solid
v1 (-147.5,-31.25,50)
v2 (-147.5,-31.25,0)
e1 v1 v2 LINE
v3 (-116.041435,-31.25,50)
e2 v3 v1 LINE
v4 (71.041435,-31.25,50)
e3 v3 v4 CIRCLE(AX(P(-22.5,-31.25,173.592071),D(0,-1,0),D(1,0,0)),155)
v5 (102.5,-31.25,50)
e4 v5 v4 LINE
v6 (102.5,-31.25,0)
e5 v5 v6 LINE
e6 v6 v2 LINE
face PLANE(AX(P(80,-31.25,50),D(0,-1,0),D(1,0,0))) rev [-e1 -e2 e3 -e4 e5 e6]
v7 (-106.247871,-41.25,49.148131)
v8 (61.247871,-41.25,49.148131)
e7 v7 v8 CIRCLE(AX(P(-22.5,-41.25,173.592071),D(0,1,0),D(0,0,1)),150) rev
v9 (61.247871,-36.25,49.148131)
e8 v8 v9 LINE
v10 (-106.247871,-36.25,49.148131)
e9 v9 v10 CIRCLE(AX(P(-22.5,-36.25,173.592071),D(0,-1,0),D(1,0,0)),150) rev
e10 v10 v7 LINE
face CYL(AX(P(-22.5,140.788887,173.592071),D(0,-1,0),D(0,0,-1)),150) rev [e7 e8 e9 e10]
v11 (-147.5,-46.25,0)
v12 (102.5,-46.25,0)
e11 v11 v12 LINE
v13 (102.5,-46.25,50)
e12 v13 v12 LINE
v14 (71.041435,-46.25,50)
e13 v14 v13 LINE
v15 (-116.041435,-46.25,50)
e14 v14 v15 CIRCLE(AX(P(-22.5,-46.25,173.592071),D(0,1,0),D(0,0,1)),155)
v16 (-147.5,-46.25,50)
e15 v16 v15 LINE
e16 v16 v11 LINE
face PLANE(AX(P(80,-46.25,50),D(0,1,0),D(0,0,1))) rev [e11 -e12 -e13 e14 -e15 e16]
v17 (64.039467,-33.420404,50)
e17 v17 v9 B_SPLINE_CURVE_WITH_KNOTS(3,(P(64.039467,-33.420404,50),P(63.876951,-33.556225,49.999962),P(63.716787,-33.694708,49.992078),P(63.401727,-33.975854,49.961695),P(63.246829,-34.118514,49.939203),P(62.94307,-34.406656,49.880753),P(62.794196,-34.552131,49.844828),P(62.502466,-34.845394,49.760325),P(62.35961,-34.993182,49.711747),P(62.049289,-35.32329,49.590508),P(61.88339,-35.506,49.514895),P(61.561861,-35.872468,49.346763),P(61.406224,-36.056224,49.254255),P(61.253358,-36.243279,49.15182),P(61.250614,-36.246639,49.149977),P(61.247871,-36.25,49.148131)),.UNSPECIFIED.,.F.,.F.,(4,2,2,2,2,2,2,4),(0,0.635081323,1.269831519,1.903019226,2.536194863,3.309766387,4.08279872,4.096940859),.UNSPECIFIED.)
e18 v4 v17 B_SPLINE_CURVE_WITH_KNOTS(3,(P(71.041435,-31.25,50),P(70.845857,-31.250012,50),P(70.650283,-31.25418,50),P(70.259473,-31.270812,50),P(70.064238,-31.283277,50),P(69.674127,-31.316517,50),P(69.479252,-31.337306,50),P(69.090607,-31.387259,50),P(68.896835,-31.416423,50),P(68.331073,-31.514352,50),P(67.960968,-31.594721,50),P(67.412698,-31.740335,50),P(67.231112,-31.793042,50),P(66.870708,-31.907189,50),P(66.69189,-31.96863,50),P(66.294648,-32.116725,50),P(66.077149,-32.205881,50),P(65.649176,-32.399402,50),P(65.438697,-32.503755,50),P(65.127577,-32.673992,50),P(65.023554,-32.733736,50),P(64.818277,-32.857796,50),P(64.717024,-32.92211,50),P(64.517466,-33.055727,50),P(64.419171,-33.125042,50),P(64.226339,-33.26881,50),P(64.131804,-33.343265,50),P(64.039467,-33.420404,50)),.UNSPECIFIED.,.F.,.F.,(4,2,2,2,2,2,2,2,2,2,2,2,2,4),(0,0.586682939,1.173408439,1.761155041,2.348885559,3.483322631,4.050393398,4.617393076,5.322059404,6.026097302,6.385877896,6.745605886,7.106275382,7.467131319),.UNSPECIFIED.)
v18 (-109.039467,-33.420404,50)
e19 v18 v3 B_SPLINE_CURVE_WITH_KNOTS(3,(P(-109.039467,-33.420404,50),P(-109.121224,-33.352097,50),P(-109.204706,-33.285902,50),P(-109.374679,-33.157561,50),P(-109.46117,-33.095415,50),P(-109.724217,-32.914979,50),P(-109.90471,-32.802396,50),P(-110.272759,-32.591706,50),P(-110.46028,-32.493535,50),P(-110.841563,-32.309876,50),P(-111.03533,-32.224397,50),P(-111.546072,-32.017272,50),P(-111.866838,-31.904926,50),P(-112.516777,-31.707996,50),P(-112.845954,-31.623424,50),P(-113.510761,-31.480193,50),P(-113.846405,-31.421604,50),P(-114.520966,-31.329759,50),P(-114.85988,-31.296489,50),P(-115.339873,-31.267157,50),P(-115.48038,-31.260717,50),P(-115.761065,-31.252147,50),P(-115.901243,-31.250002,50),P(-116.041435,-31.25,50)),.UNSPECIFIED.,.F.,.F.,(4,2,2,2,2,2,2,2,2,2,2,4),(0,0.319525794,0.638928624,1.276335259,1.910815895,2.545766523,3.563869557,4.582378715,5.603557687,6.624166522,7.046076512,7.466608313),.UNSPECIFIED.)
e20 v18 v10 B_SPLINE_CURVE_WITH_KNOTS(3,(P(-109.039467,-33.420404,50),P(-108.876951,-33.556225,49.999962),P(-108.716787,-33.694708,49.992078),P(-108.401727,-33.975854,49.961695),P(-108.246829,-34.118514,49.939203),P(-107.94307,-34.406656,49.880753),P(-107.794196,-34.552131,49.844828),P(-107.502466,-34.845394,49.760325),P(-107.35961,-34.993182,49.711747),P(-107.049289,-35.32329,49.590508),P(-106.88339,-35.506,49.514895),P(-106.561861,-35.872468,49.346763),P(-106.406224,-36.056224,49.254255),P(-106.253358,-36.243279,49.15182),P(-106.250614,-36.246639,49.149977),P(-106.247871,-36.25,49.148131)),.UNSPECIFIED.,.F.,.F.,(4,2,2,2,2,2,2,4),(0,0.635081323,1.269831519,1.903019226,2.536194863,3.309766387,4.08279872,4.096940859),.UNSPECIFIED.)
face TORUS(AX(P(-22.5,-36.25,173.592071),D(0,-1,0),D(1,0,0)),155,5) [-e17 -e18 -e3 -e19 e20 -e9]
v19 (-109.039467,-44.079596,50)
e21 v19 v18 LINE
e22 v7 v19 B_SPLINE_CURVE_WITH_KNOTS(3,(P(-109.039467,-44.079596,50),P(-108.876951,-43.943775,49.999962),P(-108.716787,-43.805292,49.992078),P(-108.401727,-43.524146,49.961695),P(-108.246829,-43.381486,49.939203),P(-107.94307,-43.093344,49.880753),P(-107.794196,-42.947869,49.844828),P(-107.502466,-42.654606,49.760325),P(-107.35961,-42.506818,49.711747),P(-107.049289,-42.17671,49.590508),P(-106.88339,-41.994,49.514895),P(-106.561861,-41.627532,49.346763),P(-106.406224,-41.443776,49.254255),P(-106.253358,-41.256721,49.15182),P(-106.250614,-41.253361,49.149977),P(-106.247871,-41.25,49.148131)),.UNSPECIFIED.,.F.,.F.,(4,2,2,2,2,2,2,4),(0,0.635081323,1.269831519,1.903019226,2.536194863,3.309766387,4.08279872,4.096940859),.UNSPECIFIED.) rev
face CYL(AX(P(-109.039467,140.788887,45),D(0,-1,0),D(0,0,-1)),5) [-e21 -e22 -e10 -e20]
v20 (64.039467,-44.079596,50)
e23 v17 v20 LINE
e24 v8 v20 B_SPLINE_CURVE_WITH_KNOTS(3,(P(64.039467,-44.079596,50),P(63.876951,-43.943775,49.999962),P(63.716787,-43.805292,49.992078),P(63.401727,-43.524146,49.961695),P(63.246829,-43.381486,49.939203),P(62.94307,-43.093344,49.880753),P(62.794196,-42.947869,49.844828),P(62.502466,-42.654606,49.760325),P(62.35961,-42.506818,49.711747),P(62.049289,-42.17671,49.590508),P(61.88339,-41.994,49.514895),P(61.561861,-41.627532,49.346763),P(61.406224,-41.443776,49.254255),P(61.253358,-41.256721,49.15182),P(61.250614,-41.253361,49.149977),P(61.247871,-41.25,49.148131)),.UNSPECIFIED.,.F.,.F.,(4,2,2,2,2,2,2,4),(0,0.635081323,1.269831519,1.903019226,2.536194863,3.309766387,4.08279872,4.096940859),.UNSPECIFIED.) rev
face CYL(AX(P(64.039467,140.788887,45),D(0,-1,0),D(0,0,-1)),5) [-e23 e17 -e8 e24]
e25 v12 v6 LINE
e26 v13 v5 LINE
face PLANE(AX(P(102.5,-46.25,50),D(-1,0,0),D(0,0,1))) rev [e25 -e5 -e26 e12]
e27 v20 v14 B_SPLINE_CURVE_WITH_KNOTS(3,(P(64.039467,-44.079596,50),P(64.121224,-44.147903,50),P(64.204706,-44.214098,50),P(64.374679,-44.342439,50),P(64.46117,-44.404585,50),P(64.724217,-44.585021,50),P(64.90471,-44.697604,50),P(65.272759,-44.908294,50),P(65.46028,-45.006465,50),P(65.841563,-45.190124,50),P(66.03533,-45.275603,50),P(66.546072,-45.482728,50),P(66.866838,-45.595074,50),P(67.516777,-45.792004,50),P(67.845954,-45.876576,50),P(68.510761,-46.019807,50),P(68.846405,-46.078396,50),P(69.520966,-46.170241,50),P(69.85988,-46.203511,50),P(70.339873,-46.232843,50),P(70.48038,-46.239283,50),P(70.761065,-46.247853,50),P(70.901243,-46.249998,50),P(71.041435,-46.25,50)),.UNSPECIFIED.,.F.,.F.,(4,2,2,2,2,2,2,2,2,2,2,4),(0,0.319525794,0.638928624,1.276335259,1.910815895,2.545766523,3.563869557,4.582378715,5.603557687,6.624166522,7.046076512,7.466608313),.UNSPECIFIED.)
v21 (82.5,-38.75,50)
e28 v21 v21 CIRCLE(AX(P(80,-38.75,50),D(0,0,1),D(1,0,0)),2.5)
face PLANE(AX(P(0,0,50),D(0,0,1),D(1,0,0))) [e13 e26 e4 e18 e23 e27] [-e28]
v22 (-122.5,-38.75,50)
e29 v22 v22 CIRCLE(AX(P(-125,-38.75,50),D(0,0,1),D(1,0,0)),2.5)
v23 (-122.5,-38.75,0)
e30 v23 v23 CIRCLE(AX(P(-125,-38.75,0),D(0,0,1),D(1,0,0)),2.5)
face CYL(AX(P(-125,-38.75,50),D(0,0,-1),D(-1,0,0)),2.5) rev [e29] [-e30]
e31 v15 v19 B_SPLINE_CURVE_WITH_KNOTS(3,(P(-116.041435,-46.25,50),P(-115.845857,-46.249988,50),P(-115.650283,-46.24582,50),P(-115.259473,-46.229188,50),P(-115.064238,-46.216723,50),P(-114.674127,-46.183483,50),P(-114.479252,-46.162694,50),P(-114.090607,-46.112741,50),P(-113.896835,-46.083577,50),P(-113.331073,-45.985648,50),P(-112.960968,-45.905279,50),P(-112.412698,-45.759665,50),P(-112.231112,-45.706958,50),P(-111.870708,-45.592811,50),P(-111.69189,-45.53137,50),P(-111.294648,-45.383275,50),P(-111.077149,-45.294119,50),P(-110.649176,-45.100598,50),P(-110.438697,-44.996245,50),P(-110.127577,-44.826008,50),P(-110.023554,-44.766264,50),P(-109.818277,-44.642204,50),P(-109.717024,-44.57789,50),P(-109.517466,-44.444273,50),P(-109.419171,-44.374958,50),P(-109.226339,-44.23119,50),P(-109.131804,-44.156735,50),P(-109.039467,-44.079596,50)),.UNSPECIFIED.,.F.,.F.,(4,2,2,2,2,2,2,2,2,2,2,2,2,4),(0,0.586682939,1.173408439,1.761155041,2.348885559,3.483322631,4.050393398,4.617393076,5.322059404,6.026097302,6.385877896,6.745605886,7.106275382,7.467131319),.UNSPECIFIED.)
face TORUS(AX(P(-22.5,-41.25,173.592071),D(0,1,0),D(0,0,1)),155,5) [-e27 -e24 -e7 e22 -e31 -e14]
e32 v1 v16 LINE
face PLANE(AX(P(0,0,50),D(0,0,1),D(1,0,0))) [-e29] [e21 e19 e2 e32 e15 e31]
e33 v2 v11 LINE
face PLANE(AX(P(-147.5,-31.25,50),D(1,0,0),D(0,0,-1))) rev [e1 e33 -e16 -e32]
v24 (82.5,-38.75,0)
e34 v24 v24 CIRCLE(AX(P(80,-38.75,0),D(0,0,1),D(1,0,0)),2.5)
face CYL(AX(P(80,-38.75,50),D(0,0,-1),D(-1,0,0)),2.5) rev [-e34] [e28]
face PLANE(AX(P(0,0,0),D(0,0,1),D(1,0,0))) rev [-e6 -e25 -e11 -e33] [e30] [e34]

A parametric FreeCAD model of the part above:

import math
import FreeCAD as App
import Part
import Sketcher
from FreeCAD import Vector


def edges_at(feature, points):
    """Names of the edges that pass closest to the given points."""
    edges = feature.Shape.Edges
    near = lambda p: min(range(len(edges)), key=lambda i: edges[i].distToShape(Part.Vertex(*p))[0])
    return sorted({f"Edge{near(p) + 1}" for p in points})


def add_polygon(sketch, points):
    """Adds a closed chain of lines whose ends are joined by coincident constraints."""
    first, n = sketch.GeometryCount, len(points)
    for a, b in zip(points, points[1:] + points[:1]):
        sketch.addGeometry(Part.LineSegment(App.Vector(*a, 0), App.Vector(*b, 0)), False)
    for i in range(n):
        sketch.addConstraint(Sketcher.Constraint("Coincident", first + i, 2, first + (i + 1) % n, 1))

doc = App.newDocument("Part")
body = doc.addObject("PartDesign::Body", "Body")

# Sketch on XY plane
sketch1 = body.newObject("Sketcher::SketchObject", "Sketch")
sketch1.AttachmentSupport = (doc.getObject("XY_Plane"), [""])
sketch1.MapMode = "FlatFace"
add_polygon(sketch1, [(102.5, -46.25), (102.5, -31.25), (-147.5, -31.25), (-147.5, -46.25)])  # lines 0-3
sketch1.addGeometry(Part.Circle(Vector(-125, -38.75, 0), Vector(0, 0, 1), 2.5), False)  # 4
sketch1.addGeometry(Part.Circle(Vector(80, -38.75, 0), Vector(0, 0, 1), 2.5), False)  # 5
sketch1.addConstraint(Sketcher.Constraint("Vertical", 0))
sketch1.addConstraint(Sketcher.Constraint("Horizontal", 1))
sketch1.addConstraint(Sketcher.Constraint("Vertical", 2))
sketch1.addConstraint(Sketcher.Constraint("Horizontal", 3))
sketch1.addConstraint(Sketcher.Constraint("Equal", 4, 5))
sketch1.addConstraint(Sketcher.Constraint("Horizontal", 4, 3, 5, 3))
sketch1.addConstraint(Sketcher.Constraint("Diameter", 4, 5.0))
sketch1.addConstraint(Sketcher.Constraint("DistanceX", 1, 2, 1, 1, 250.0))
sketch1.addConstraint(Sketcher.Constraint("DistanceY", 0, 1, 0, 2, 15.0))
sketch1.addConstraint(Sketcher.Constraint("DistanceX", 4, 3, -1, 1, 125.0))
sketch1.addConstraint(Sketcher.Constraint("DistanceX", -1, 1, 5, 3, 80.0))
sketch1.addConstraint(Sketcher.Constraint("DistanceX", -1, 1, 0, 2, 102.5))
sketch1.addConstraint(Sketcher.Constraint("DistanceY", 5, 3, 0, 2, 7.5))
sketch1.addConstraint(Sketcher.Constraint("DistanceY", 4, 3, -1, 1, 38.75))
pad1 = body.newObject("PartDesign::Pad", "Pad")
pad1.Profile = sketch1
pad1.Length = 50

# Sketch on XZ plane
sketch2 = body.newObject("Sketcher::SketchObject", "Sketch001")
sketch2.AttachmentSupport = (doc.getObject("XZ_Plane"), [""])
sketch2.MapMode = "FlatFace"
sketch2.AttachmentOffset = App.Placement(Vector(0, 0, 46.25), App.Rotation())
sketch2.addGeometry(Part.LineSegment(Vector(62.5, 50, 0), Vector(-107.5, 50, 0)), False)
sketch2.addGeometry(Part.ArcOfCircle(Part.Circle(Vector(-22.5, 173.592071, 0), Vector(0, 0, 1), 150), math.radians(-124.518108), math.radians(-55.481892)), False)
sketch2.addConstraint(Sketcher.Constraint("Coincident", 0, 1, 1, 2))
sketch2.addConstraint(Sketcher.Constraint("Coincident", 1, 1, 0, 2))
sketch2.addConstraint(Sketcher.Constraint("Horizontal", 0))
sketch2.addConstraint(Sketcher.Constraint("Radius", 1, 150.0))
sketch2.addConstraint(Sketcher.Constraint("DistanceX", 0, 2, 0, 1, 170.0))
sketch2.addConstraint(Sketcher.Constraint("DistanceY", -1, 1, 0, 1, 50.0))
sketch2.addConstraint(Sketcher.Constraint("DistanceX", 1, 3, -1, 1, 22.5))
pocket1 = body.newObject("PartDesign::Pocket", "Pocket")
pocket1.Profile = sketch2
pocket1.Length = 15
doc.recompute()

fillet = body.newObject("PartDesign::Fillet", "Fillet")
fillet.Base = (pocket1, edges_at(pocket1, [
    (62.5, -38.75, 50),
    (-107.5, -38.75, 50),
    (-22.5, -46.25, 23.592),
    (-22.5, -31.25, 23.592),
]))
fillet.Radius = 5

doc.recompute()
